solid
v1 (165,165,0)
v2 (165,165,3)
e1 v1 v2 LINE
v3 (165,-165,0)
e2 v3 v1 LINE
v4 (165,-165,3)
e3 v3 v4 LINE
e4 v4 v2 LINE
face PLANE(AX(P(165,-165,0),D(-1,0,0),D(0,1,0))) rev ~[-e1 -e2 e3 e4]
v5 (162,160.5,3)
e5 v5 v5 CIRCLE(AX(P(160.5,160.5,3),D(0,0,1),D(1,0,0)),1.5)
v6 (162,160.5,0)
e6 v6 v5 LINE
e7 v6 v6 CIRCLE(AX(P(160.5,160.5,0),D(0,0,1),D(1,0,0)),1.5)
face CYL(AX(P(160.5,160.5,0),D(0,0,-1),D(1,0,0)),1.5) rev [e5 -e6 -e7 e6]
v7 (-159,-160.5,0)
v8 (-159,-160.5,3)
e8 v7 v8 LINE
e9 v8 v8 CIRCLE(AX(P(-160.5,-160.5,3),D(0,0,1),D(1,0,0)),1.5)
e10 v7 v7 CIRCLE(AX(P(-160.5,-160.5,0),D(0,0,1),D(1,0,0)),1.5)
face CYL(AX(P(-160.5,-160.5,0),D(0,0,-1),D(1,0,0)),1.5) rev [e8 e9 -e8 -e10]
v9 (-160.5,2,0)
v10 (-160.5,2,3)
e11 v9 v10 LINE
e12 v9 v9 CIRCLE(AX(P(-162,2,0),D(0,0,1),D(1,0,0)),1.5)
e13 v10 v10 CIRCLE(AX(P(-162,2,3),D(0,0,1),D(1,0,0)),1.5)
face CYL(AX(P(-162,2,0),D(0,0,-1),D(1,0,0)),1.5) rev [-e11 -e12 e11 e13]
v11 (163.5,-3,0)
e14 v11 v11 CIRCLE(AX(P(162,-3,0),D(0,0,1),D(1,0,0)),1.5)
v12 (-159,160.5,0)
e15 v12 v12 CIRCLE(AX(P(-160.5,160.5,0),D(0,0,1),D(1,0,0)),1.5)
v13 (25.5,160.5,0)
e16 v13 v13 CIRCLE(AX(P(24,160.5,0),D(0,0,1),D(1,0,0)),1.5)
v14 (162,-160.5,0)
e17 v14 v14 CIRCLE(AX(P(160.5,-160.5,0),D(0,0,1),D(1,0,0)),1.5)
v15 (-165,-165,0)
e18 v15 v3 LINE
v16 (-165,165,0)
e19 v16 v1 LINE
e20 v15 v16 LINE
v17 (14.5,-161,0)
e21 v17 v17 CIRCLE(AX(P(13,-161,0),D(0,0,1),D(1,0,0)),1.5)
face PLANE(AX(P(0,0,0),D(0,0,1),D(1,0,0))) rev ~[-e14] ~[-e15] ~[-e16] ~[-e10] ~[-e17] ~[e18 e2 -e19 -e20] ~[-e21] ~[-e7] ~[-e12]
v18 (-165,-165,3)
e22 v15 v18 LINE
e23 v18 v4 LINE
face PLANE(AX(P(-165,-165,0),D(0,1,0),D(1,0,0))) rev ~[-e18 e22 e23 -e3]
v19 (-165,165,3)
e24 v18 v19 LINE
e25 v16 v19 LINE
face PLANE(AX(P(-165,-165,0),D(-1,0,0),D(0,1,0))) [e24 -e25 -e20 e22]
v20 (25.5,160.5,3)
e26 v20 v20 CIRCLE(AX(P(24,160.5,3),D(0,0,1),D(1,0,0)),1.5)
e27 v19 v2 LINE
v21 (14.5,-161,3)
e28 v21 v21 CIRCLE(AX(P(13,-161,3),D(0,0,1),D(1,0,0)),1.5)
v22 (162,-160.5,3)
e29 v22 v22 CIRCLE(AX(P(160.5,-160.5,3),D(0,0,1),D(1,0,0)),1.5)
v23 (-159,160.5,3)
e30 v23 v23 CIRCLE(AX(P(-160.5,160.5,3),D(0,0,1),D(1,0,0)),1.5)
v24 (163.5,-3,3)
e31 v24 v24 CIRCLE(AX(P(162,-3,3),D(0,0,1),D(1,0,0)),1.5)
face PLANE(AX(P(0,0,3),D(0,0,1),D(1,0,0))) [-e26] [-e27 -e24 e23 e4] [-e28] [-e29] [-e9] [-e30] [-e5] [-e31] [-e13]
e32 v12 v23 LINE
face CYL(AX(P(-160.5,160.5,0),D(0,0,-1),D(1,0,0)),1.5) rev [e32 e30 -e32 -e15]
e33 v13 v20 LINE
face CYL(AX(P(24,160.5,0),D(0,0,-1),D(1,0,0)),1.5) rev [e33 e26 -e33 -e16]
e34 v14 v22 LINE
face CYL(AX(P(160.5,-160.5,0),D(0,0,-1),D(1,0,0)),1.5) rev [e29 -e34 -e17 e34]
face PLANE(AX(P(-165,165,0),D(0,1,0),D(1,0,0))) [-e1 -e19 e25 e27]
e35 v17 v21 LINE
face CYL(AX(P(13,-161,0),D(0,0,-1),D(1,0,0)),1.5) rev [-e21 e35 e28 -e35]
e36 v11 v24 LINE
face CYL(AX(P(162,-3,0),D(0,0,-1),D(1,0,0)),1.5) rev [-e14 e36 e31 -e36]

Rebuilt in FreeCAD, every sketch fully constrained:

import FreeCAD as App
import Part
import Sketcher

doc = App.newDocument("Part")
body = doc.addObject("PartDesign::Body", "Body")

# Sketch on XY plane
sketch1 = body.newObject("Sketcher::SketchObject", "Sketch")
sketch1.AttachmentSupport = (doc.getObject("XY_Plane"), [""])
sketch1.MapMode = "FlatFace"
sketch1.addGeometry([
    Part.LineSegment(App.Vector(-165, 165, 0), App.Vector(-165, -165, 0)),  # 0
    Part.LineSegment(App.Vector(-165, -165, 0), App.Vector(165, -165, 0)),  # 1
    Part.LineSegment(App.Vector(165, -165, 0), App.Vector(165, 165, 0)),  # 2
    Part.LineSegment(App.Vector(165, 165, 0), App.Vector(-165, 165, 0)),  # 3
    Part.Circle(App.Vector(-160.5, -160.5, 0), App.Vector(0, 0, 1), 1.5),  # 4
    Part.Circle(App.Vector(13, -161, 0), App.Vector(0, 0, 1), 1.5),  # 5
    Part.Circle(App.Vector(160.5, -160.5, 0), App.Vector(0, 0, 1), 1.5),  # 6
    Part.Circle(App.Vector(162, -3, 0), App.Vector(0, 0, 1), 1.5),  # 7
    Part.Circle(App.Vector(-162, 2, 0), App.Vector(0, 0, 1), 1.5),  # 8
    Part.Circle(App.Vector(-160.5, 160.5, 0), App.Vector(0, 0, 1), 1.5),  # 9
    Part.Circle(App.Vector(24, 160.5, 0), App.Vector(0, 0, 1), 1.5),  # 10
    Part.Circle(App.Vector(160.5, 160.5, 0), App.Vector(0, 0, 1), 1.5),  # 11
], False)
sketch1.addConstraint([
    Sketcher.Constraint("Coincident", 0, 2, 1, 1),
    Sketcher.Constraint("Coincident", 1, 2, 2, 1),
    Sketcher.Constraint("Coincident", 2, 2, 3, 1),
    Sketcher.Constraint("Coincident", 3, 2, 0, 1),
    Sketcher.Constraint("Vertical", 0),
    Sketcher.Constraint("Horizontal", 1),
    Sketcher.Constraint("Vertical", 2),
    Sketcher.Constraint("Horizontal", 3),
    Sketcher.Constraint("Equal", 4, 5),
    Sketcher.Constraint("Equal", 5, 6),
    Sketcher.Constraint("Equal", 6, 7),
    Sketcher.Constraint("Equal", 7, 8),
    Sketcher.Constraint("Equal", 8, 9),
    Sketcher.Constraint("Equal", 9, 10),
    Sketcher.Constraint("Equal", 10, 11),
    Sketcher.Constraint("Symmetric", 6, 3, 9, 3, -1, 1),
    Sketcher.Constraint("Symmetric", 4, 3, 11, 3, -1, 1),
    Sketcher.Constraint("Symmetric", 0, 2, 2, 2, -1, 1),
    Sketcher.Constraint("Symmetric", 4, 3, 6, 3, -2),
    Sketcher.Constraint("Horizontal", 9, 3, 10, 3),
    Sketcher.Constraint("Equal", 3, 0),
    Sketcher.Constraint("Diameter", 4, 3.0),
    Sketcher.Constraint("DistanceX", 1, 1, 1, 2, 330.0),
    Sketcher.Constraint("DistanceX", -1, 1, 5, 3, 13.0),
    Sketcher.Constraint("DistanceY", 5, 3, -1, 1, 161.0),
    Sketcher.Constraint("DistanceX", -1, 1, 7, 3, 162.0),
    Sketcher.Constraint("DistanceY", 7, 3, -1, 1, 3.0),
    Sketcher.Constraint("DistanceX", 8, 3, -1, 1, 162.0),
    Sketcher.Constraint("DistanceY", -1, 1, 8, 3, 2.0),
    Sketcher.Constraint("DistanceX", -1, 1, 10, 3, 24.0),
    Sketcher.Constraint("DistanceX", 4, 3, 6, 3, 321.0),
    Sketcher.Constraint("DistanceY", 4, 3, 9, 3, 321.0),
])
pad1 = body.newObject("PartDesign::Pad", "Pad")
pad1.Profile = sketch1
pad1.Length = 3

doc.recompute()
